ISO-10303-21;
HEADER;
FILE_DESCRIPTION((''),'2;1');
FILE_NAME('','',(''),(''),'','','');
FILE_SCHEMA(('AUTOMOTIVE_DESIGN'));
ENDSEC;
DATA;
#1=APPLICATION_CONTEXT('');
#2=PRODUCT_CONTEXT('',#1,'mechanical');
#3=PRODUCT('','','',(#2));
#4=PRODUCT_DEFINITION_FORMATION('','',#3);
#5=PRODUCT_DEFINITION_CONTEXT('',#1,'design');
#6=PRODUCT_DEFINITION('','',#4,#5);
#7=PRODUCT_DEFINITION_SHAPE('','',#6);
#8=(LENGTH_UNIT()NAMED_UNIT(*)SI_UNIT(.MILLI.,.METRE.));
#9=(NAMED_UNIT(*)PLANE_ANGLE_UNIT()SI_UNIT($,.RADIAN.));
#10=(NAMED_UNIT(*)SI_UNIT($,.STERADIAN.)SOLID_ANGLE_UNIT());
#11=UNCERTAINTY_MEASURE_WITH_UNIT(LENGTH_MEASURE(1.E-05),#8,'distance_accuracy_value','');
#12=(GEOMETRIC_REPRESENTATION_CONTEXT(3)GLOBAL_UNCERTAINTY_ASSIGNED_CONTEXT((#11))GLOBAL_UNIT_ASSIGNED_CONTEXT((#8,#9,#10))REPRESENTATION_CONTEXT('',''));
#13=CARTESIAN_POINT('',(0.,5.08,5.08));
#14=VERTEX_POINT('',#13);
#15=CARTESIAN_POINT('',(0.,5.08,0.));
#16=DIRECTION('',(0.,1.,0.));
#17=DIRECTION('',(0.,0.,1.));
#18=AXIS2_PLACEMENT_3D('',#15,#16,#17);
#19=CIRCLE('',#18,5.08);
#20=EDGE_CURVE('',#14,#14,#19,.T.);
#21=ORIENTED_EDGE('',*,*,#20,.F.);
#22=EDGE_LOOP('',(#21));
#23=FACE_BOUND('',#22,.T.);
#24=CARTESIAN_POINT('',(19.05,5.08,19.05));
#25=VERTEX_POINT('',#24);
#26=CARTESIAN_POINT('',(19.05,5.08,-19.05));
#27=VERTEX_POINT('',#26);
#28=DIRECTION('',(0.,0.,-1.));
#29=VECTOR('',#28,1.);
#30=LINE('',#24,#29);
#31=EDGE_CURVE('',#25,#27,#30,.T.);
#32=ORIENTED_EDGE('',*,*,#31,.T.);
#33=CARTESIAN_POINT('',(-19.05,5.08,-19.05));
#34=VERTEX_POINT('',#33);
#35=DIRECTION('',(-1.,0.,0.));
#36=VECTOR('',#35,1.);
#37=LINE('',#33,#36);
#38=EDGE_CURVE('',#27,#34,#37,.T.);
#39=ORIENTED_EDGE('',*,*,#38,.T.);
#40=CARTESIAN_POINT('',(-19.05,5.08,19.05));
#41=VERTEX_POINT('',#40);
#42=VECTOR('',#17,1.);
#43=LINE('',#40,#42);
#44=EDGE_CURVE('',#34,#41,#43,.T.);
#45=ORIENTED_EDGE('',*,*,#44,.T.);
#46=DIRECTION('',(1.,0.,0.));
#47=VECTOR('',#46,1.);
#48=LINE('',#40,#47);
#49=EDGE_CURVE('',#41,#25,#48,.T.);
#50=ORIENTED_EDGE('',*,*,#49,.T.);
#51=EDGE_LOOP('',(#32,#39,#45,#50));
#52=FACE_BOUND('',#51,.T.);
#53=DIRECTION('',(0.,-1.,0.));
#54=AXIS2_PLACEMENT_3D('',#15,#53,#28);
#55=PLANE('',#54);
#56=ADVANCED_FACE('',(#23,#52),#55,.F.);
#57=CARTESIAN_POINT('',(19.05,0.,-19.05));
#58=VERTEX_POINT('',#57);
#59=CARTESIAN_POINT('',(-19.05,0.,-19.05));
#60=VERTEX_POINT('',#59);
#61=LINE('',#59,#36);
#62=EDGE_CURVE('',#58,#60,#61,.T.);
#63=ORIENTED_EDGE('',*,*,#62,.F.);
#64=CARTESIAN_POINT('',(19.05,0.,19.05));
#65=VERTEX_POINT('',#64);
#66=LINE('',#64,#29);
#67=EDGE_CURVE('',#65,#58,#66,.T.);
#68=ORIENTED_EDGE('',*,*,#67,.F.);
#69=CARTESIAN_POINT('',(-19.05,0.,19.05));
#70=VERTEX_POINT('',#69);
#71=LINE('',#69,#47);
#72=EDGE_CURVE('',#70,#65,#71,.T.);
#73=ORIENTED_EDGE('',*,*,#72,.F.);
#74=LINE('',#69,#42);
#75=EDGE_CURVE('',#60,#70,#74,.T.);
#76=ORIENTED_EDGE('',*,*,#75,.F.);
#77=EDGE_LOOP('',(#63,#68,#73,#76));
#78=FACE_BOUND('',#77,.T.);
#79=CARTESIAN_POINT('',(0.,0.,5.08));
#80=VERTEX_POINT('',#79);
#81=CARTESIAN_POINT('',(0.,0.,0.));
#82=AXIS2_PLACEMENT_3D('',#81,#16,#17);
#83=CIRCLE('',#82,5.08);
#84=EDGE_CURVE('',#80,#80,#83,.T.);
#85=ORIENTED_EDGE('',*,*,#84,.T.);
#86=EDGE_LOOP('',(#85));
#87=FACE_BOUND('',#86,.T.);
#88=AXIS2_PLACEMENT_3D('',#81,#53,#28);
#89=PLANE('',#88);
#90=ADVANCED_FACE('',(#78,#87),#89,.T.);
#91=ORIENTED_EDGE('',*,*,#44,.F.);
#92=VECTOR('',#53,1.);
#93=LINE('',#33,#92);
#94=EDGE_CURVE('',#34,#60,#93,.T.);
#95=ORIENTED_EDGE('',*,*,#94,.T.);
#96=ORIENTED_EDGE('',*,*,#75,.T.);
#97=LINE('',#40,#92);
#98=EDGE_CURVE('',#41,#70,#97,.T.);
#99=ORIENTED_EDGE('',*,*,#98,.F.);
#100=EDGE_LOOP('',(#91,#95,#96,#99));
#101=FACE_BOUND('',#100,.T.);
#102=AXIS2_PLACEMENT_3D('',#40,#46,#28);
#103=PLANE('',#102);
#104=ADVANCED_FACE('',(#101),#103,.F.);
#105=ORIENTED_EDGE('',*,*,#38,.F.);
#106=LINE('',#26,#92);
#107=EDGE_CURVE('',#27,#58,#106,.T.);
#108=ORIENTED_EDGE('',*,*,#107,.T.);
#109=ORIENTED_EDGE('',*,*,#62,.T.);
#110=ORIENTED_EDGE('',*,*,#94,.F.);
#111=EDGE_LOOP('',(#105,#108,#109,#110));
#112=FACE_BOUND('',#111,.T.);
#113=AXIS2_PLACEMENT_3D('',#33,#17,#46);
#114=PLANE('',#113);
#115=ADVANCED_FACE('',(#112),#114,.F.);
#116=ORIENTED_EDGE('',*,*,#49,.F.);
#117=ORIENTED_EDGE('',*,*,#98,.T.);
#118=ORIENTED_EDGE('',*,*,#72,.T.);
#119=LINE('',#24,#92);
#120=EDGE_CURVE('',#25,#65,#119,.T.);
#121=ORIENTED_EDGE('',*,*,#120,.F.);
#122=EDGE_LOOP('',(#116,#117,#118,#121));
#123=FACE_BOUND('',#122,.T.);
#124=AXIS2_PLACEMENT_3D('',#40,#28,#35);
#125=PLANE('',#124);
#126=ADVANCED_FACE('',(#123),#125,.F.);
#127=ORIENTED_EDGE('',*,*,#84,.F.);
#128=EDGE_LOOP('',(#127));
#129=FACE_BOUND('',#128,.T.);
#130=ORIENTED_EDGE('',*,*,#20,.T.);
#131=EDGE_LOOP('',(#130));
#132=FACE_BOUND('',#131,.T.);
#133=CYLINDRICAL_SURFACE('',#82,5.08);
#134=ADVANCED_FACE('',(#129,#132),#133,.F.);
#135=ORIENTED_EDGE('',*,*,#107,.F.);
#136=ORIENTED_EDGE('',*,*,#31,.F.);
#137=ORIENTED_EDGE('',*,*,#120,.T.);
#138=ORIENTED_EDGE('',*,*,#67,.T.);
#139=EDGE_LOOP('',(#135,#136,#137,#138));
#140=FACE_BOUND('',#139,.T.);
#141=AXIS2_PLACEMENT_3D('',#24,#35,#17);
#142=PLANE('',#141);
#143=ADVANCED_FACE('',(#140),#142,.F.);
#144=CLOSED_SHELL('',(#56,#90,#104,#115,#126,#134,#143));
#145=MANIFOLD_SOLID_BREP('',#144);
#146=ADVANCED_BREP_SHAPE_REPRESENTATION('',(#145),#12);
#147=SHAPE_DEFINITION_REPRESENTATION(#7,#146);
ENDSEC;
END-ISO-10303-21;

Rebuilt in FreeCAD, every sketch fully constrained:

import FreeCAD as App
import Part
import Sketcher

V = App.Vector
Q = App.Units.Quantity

doc = App.newDocument("Part")
body = doc.addObject("PartDesign::Body", "Body")

sketch1 = doc.addObject("Sketcher::SketchObject", "Sketch")
body.addObject(sketch1)
sketch1.AttachmentSupport = (doc.XZ_Plane, [""])
sketch1.MapMode = "FlatFace"
sketch1.addGeometry(Part.LineSegment(V(-19, -19, 0), V(-19, 19, 0)), False)
sketch1.addGeometry(Part.LineSegment(V(-19, 19, 0), V(19, 19, 0)), False)
sketch1.addGeometry(Part.LineSegment(V(19, 19, 0), V(19, -19, 0)), False)
sketch1.addGeometry(Part.LineSegment(V(19, -19, 0), V(-19, -19, 0)), False)
sketch1.addConstraint(Sketcher.Constraint("Coincident", 0, 2, 1, 1))
sketch1.addConstraint(Sketcher.Constraint("Coincident", 1, 2, 2, 1))
sketch1.addConstraint(Sketcher.Constraint("Coincident", 2, 2, 3, 1))
sketch1.addConstraint(Sketcher.Constraint("Coincident", 3, 2, 0, 1))
sketch1.addConstraint(Sketcher.Constraint("Vertical", 0))
sketch1.addConstraint(Sketcher.Constraint("Horizontal", 1))
sketch1.addConstraint(Sketcher.Constraint("Vertical", 2))
sketch1.addConstraint(Sketcher.Constraint("Horizontal", 3))
sketch1.addConstraint(Sketcher.Constraint("Symmetric", 0, 2, 2, 2, -1, 1))
sketch1.addConstraint(Sketcher.Constraint("Equal", 3, 0))
sketch1.addConstraint(Sketcher.Constraint("DistanceX", 1, 1, 1, 2, Q("1.5 in")))
pad1 = doc.addObject("PartDesign::Pad", "Pad")
body.addObject(pad1)
pad1.Profile = sketch1
pad1.Length = Q("0.2 in")
pad1.Reversed = True

sketch2 = doc.addObject("Sketcher::SketchObject", "Sketch001")
body.addObject(sketch2)
sketch2.AttachmentSupport = (doc.XZ_Plane, [""])
sketch2.MapMode = "FlatFace"
sketch2.AttachmentOffset = App.Placement(V(0, 0, -0.2 * 25.4), App.Rotation())
sketch2.addGeometry(Part.Circle(V(0, 0, 0), V(0, 0, 1), 5), False)
sketch2.addConstraint(Sketcher.Constraint("Coincident", 0, 3, -1, 1))
sketch2.addConstraint(Sketcher.Constraint("Diameter", 0, Q("0.4 in")))
pocket1 = doc.addObject("PartDesign::Pocket", "Pocket")
body.addObject(pocket1)
pocket1.Profile = sketch2
pocket1.Length = Q("0.2 in")
pocket1.Reversed = True

doc.recompute()
